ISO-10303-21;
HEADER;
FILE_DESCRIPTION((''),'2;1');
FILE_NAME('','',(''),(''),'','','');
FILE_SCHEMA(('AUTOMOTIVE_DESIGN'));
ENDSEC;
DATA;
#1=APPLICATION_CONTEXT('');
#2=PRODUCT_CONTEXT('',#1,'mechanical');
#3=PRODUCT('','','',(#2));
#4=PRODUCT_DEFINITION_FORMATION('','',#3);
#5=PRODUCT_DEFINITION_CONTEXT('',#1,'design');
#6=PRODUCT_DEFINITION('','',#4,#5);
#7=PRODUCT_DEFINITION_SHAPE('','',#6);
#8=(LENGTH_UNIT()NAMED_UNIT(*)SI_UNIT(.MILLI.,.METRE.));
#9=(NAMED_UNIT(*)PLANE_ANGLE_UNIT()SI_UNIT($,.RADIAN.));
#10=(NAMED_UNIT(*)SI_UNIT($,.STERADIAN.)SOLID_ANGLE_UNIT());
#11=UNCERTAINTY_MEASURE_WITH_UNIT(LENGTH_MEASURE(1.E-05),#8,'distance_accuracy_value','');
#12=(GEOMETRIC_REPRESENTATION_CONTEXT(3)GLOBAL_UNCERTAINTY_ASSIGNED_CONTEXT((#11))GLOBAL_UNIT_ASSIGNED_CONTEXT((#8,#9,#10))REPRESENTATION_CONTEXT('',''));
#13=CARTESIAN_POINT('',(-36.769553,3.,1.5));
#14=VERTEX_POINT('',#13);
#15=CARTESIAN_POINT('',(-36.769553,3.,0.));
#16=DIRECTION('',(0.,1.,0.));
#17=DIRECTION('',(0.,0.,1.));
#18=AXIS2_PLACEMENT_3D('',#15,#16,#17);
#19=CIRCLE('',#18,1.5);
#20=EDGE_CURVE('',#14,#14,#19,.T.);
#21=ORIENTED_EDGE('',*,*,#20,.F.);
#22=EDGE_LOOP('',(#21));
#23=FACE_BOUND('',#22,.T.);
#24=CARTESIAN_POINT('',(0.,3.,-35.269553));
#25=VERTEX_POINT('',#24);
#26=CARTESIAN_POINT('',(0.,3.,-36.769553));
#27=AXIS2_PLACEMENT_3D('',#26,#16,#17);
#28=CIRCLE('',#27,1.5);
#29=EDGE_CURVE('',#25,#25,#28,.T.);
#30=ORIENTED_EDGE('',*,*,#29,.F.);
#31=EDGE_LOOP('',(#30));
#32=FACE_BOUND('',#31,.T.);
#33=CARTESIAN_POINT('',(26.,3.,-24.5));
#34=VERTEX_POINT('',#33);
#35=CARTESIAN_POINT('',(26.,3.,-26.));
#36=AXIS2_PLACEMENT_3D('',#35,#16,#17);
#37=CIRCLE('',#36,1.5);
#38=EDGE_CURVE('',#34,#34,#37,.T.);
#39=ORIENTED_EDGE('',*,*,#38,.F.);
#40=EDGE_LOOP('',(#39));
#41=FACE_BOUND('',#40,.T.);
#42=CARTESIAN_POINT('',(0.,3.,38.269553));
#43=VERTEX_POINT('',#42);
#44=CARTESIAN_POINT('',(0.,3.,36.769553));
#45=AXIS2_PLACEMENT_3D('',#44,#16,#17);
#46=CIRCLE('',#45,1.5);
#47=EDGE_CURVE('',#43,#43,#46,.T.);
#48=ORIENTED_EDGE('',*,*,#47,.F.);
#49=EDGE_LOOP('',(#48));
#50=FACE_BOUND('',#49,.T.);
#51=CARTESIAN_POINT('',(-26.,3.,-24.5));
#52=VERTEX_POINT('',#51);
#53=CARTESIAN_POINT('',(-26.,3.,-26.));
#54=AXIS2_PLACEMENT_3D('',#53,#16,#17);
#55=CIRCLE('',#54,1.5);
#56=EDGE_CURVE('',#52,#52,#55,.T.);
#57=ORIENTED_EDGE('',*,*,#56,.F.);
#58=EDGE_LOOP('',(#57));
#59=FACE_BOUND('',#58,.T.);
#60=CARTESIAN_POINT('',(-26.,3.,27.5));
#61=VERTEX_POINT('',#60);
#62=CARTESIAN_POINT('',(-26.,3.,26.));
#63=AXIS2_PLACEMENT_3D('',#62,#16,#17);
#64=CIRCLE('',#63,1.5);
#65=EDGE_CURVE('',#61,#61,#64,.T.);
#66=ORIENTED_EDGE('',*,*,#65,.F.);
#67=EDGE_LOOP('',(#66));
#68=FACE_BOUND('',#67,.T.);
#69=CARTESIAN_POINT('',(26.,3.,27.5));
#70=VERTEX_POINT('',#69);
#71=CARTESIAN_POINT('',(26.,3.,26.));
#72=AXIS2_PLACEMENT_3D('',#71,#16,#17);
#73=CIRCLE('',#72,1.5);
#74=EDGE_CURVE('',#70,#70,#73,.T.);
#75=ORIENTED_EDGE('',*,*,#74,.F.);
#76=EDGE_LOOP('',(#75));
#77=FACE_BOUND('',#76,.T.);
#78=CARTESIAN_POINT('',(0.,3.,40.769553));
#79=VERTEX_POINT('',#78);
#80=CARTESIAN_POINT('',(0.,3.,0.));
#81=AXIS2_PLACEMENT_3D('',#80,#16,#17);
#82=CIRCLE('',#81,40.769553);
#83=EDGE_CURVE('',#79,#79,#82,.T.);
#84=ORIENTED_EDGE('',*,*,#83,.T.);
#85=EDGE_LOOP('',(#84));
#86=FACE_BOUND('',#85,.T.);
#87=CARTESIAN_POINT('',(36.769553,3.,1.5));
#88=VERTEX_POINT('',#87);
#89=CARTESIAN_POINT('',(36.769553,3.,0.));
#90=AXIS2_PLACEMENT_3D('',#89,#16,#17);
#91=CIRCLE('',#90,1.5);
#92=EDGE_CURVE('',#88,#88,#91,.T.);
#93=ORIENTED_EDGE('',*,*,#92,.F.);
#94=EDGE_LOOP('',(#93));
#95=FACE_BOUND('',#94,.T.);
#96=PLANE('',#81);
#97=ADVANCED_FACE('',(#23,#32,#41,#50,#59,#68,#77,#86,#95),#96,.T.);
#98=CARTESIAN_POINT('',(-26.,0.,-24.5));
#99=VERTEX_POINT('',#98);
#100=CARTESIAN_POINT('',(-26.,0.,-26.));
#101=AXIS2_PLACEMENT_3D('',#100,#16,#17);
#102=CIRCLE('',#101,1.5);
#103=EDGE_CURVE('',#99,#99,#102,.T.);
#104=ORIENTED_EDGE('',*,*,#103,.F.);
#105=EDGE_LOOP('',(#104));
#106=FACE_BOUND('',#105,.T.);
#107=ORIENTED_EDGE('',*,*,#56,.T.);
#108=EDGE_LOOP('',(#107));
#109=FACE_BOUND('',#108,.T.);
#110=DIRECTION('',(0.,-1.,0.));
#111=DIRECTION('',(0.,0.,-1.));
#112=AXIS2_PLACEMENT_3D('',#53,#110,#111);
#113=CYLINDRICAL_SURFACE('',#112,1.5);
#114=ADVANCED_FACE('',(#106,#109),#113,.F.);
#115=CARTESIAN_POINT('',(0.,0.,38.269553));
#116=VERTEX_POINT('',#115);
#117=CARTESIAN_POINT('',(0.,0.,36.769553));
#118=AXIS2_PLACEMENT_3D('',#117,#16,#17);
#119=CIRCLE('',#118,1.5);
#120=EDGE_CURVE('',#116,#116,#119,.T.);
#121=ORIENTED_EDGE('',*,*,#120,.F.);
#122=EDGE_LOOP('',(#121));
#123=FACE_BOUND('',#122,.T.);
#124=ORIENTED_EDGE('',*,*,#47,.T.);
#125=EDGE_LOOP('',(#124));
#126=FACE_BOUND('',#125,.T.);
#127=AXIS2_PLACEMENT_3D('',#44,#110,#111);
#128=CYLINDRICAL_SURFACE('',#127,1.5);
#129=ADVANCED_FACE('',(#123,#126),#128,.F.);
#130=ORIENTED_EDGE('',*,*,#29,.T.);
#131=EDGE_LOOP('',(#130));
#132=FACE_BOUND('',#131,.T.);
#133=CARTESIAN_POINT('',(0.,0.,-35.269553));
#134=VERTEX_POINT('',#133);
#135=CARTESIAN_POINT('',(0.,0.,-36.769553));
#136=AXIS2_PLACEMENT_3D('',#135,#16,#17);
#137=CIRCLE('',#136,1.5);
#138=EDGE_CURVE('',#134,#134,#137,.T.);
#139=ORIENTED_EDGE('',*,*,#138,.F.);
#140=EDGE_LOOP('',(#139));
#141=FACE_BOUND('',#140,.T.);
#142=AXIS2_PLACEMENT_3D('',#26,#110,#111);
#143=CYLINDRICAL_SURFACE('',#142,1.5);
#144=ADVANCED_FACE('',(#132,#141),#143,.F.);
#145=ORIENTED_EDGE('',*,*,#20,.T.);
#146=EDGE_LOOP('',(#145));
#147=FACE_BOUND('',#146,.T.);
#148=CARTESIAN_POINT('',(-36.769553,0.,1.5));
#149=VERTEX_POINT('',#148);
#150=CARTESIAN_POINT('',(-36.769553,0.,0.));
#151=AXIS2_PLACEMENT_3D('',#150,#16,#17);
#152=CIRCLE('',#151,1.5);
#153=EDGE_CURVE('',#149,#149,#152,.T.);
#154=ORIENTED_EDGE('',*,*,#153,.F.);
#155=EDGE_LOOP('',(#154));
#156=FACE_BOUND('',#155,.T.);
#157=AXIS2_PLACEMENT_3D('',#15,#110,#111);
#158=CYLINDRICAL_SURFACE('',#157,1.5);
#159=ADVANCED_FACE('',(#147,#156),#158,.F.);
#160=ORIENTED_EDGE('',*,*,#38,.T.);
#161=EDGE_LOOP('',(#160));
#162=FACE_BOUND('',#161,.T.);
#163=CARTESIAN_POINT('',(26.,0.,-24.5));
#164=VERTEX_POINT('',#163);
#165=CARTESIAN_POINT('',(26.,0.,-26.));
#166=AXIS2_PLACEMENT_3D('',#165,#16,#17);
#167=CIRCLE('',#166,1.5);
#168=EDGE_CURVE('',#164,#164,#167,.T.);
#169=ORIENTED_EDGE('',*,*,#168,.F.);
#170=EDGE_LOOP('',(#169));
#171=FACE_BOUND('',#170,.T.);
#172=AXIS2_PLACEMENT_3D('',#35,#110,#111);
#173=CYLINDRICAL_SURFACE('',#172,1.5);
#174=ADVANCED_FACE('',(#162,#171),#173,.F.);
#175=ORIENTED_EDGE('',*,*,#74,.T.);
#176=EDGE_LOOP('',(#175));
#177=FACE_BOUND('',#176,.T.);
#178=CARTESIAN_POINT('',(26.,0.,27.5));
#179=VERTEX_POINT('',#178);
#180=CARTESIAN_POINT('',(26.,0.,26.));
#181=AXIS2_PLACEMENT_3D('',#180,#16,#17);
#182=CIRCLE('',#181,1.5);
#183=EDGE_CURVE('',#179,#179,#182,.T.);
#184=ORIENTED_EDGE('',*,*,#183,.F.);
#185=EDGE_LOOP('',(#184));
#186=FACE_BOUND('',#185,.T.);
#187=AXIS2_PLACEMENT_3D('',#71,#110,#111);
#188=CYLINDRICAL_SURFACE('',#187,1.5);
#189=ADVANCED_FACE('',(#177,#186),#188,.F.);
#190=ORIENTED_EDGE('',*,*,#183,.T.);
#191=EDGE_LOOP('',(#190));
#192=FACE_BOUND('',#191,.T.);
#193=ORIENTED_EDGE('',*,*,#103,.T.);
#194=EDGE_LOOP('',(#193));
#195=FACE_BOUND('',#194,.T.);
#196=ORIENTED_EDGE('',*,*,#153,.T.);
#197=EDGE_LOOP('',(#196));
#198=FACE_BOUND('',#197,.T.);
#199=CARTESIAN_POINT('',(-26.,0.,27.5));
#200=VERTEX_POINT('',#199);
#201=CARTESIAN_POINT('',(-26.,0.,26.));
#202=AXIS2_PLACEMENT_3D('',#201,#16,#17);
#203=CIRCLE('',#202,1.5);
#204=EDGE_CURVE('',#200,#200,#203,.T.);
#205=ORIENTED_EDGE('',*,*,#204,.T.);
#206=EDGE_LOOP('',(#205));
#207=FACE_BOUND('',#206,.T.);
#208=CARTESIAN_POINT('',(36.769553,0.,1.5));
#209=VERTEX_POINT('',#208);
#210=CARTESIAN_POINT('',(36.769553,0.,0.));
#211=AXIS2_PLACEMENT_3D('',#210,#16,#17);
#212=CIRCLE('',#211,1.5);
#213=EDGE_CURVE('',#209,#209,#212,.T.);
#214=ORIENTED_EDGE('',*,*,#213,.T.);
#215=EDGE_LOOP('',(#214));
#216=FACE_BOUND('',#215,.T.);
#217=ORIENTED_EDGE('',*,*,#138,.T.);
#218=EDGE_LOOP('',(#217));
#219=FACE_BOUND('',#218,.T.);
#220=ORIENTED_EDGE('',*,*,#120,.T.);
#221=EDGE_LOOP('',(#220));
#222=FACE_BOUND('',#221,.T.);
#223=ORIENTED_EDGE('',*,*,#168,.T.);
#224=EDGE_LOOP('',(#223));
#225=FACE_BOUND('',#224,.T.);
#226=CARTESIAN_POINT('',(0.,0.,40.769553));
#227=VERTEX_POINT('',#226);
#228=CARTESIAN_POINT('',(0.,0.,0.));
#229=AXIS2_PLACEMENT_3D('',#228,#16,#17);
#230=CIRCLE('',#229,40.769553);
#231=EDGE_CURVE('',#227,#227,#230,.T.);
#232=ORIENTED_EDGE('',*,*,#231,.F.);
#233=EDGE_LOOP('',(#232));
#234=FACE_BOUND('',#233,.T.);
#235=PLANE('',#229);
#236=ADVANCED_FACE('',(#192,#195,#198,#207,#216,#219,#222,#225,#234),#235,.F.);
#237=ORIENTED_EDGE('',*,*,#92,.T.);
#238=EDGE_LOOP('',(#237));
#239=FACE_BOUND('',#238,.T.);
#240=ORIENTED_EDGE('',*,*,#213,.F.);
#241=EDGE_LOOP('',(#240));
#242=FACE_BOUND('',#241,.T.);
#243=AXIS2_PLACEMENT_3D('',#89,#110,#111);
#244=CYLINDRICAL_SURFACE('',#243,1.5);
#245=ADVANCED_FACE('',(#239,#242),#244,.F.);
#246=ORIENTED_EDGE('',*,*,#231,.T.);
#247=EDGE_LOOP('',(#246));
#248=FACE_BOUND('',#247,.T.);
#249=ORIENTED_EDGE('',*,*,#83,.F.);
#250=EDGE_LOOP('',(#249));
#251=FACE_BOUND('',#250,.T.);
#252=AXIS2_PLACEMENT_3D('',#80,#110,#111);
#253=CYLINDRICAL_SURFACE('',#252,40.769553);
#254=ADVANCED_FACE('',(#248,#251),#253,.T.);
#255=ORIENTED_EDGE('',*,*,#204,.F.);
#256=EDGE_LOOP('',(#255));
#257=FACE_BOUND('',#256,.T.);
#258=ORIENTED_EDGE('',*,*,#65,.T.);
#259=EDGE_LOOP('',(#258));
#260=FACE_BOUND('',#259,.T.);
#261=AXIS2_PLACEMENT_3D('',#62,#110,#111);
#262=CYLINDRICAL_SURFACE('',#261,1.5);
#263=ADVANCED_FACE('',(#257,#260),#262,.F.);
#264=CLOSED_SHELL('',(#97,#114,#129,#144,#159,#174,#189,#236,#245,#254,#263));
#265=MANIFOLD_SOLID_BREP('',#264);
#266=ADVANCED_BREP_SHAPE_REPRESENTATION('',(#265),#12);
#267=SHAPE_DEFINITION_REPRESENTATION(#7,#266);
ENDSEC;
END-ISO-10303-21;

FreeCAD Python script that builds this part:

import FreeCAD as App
import Part
import Sketcher
Q = App.Units.Quantity

doc = App.newDocument("Part")
body = doc.addObject("PartDesign::Body", "Body")

sketch1 = body.newObject("Sketcher::SketchObject", "Sketch")
sketch1.AttachmentSupport = (doc.getObject("XZ_Plane"), [""])
sketch1.MapMode = "FlatFace"
sketch1.addGeometry(Part.Circle(App.Vector(0, 0, 0), App.Vector(0, 0, 1), 40.769553), False)
sketch1.addGeometry(Part.Circle(App.Vector(-26, -26, 0), App.Vector(0, 0, 1), 1.5), False)
sketch1.addGeometry(Part.Circle(App.Vector(0, -36.769553, 0), App.Vector(0, 0, 1), 1.5), False)
sketch1.addGeometry(Part.Circle(App.Vector(-36.769553, 0, 0), App.Vector(0, 0, 1), 1.5), False)
sketch1.addGeometry(Part.Circle(App.Vector(-26, 26, 0), App.Vector(0, 0, 1), 1.5), False)
sketch1.addGeometry(Part.Circle(App.Vector(26, -26, 0), App.Vector(0, 0, 1), 1.5), False)
sketch1.addGeometry(Part.Circle(App.Vector(36.769553, 0, 0), App.Vector(0, 0, 1), 1.5), False)
sketch1.addGeometry(Part.Circle(App.Vector(0, 36.769553, 0), App.Vector(0, 0, 1), 1.5), False)
sketch1.addGeometry(Part.Circle(App.Vector(26, 26, 0), App.Vector(0, 0, 1), 1.5), False)
sketch1.addConstraint(Sketcher.Constraint("Coincident", 0, 3, -1, 1))
sketch1.addConstraint(Sketcher.Constraint("Equal", 1, 2))
sketch1.addConstraint(Sketcher.Constraint("Equal", 2, 3))
sketch1.addConstraint(Sketcher.Constraint("Equal", 3, 4))
sketch1.addConstraint(Sketcher.Constraint("Equal", 4, 5))
sketch1.addConstraint(Sketcher.Constraint("Equal", 5, 6))
sketch1.addConstraint(Sketcher.Constraint("Equal", 6, 7))
sketch1.addConstraint(Sketcher.Constraint("Equal", 7, 8))
sketch1.addConstraint(Sketcher.Constraint("Symmetric", 4, 3, 5, 3, -1, 1))
sketch1.addConstraint(Sketcher.Constraint("Symmetric", 3, 3, 6, 3, -1, 1))
sketch1.addConstraint(Sketcher.Constraint("Symmetric", 2, 3, 7, 3, -1, 1))
sketch1.addConstraint(Sketcher.Constraint("Symmetric", 1, 3, 8, 3, -1, 1))
sketch1.addConstraint(Sketcher.Constraint("Symmetric", 1, 3, 5, 3, -2))
sketch1.addConstraint(Sketcher.Constraint("PointOnObject", 2, 3, -2))
sketch1.addConstraint(Sketcher.Constraint("PointOnObject", 3, 3, -1))
sketch1.addConstraint(Sketcher.Constraint("Diameter", 1, Q("3 mm")))
sketch1.addConstraint(Sketcher.Constraint("DistanceX", 1, 3, -1, 1, Q("26 mm")))
sketch1.addConstraint(Sketcher.Constraint("DistanceY", 1, 3, -1, 1, Q("26 mm")))
sketch1.addConstraint(Sketcher.Constraint("Diameter", 0, Q("81.539105 mm")))
sketch1.addConstraint(Sketcher.Constraint("DistanceY", 2, 3, -1, 1, Q("36.769553 mm")))
sketch1.addConstraint(Sketcher.Constraint("DistanceX", 3, 3, -1, 1, Q("36.769553 mm")))
pad1 = body.newObject("PartDesign::Pad", "Pad")
pad1.Profile = sketch1
pad1.Length = 3
pad1.Reversed = True

doc.recompute()
